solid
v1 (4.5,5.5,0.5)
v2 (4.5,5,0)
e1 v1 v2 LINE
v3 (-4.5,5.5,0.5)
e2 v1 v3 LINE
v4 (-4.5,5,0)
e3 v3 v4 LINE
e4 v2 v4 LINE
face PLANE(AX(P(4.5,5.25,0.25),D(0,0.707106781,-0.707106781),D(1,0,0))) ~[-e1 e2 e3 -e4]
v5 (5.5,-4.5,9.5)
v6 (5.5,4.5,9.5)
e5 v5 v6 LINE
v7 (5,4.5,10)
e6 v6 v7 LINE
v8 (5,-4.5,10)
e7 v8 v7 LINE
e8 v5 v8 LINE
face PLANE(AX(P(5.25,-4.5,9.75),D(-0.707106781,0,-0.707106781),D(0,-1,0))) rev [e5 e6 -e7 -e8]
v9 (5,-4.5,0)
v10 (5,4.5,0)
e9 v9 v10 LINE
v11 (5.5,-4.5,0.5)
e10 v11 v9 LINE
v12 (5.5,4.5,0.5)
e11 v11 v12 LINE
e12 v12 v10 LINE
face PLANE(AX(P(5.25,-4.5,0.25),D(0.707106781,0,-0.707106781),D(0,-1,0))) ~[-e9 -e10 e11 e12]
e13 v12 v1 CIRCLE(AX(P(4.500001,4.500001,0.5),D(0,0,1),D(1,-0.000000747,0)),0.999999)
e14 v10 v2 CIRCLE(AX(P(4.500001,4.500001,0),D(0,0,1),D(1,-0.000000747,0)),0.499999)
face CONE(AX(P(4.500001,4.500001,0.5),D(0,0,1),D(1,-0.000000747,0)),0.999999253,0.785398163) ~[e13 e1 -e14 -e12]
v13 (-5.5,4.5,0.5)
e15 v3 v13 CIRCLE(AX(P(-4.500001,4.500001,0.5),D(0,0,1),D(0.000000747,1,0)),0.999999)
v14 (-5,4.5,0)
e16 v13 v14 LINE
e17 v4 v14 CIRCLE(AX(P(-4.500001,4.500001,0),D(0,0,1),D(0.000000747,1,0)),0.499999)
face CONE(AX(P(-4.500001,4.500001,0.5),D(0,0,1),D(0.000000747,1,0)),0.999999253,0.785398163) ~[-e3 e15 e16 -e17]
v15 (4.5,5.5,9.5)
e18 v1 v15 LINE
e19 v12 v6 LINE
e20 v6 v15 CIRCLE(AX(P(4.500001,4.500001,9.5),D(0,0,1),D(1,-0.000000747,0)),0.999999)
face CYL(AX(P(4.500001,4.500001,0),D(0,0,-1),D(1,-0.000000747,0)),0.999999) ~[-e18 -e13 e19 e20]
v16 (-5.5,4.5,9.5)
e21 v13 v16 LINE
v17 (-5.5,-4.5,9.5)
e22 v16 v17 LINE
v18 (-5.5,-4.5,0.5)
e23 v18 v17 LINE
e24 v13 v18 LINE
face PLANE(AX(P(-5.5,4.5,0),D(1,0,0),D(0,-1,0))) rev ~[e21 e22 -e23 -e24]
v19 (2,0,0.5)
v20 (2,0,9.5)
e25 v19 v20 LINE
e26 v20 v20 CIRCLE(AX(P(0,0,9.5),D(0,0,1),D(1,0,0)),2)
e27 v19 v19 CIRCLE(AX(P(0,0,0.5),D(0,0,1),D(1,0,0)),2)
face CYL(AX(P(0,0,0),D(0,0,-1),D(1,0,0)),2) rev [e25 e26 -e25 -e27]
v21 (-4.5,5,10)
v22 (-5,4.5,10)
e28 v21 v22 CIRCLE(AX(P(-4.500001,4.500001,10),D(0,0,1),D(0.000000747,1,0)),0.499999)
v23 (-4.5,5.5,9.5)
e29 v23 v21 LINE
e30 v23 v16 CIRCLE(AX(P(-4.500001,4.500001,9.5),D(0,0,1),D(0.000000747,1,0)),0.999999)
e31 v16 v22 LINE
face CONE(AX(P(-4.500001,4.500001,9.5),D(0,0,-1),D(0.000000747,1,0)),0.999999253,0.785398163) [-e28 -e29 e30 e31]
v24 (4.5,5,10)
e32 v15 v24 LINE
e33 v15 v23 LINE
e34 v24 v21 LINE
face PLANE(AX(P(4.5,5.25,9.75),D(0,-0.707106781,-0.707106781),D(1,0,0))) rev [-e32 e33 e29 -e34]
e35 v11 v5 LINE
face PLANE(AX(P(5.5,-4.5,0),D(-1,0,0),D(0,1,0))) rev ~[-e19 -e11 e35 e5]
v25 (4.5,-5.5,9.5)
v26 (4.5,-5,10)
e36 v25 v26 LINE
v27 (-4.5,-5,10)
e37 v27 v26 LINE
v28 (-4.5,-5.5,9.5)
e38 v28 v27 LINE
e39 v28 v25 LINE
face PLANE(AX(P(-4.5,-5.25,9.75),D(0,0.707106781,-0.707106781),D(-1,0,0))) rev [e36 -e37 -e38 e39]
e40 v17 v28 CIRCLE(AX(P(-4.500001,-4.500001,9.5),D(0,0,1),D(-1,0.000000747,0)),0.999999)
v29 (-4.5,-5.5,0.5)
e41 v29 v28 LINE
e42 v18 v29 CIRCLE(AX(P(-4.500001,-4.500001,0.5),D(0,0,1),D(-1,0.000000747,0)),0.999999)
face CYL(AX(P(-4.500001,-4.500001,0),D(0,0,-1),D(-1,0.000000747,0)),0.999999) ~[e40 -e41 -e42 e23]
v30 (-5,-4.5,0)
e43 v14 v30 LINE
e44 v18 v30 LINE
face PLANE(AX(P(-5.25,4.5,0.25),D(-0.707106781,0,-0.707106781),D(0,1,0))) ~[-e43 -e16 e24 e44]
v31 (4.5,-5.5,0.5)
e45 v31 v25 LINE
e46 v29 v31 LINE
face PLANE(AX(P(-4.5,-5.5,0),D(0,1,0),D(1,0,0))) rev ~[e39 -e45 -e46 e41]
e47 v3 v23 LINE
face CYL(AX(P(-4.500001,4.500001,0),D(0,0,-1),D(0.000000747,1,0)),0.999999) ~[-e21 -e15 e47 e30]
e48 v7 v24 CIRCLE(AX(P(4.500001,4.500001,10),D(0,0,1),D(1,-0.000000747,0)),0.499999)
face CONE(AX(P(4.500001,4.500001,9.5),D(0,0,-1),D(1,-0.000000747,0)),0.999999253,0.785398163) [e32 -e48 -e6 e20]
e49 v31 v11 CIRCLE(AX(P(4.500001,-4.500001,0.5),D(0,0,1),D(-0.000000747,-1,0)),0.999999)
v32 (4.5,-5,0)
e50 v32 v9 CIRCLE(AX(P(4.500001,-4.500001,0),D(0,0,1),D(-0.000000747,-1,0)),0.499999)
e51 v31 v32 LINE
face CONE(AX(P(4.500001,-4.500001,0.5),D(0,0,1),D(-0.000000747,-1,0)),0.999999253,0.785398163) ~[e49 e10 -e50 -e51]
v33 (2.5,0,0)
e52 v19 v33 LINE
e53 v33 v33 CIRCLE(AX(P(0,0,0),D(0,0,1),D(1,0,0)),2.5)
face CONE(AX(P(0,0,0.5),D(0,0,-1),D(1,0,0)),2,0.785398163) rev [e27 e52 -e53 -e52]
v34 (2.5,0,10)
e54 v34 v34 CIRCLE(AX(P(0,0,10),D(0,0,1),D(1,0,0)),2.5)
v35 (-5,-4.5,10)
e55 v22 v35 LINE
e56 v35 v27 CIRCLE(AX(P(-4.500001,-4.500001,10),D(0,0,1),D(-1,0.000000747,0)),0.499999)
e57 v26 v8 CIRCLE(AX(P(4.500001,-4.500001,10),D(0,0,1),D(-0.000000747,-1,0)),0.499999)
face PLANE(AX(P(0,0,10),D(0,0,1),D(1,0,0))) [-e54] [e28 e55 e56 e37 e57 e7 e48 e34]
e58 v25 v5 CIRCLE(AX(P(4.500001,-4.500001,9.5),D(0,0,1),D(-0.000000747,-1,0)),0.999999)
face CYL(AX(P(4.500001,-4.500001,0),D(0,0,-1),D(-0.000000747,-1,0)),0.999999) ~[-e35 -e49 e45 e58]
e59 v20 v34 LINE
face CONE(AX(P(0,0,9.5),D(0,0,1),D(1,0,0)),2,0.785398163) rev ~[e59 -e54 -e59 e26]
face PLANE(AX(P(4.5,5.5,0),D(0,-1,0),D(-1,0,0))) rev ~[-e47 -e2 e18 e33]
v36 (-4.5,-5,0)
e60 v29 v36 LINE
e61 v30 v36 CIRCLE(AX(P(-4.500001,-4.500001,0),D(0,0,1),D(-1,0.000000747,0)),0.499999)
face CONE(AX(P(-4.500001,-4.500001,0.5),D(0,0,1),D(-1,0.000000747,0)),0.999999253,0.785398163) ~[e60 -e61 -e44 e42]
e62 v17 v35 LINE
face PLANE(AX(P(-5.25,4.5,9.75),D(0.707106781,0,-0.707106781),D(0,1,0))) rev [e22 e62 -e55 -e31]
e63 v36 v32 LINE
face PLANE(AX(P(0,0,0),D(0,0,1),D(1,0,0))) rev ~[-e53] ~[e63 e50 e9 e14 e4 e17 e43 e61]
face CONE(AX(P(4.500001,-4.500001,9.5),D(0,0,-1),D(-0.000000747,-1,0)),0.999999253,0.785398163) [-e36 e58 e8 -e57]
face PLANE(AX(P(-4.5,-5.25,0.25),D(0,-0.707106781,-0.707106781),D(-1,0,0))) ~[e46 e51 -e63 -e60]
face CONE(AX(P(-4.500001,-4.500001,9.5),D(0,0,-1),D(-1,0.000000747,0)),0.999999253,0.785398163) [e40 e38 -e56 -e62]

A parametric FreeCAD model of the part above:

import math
import FreeCAD as App
import Part
import Sketcher
from FreeCAD import Vector
Q = App.Units.Quantity


def edges_at(feature, points):
    """Names of the edges that pass closest to the given points."""
    edges = feature.Shape.Edges
    near = lambda p: min(range(len(edges)), key=lambda i: edges[i].distToShape(Part.Vertex(*p))[0])
    return sorted({f"Edge{near(p) + 1}" for p in points})

doc = App.newDocument("Part")
body = doc.addObject("PartDesign::Body", "Body")

sketch1 = body.newObject("Sketcher::SketchObject", "Sketch")
sketch1.AttachmentSupport = (doc.getObject("XY_Plane"), [""])
sketch1.MapMode = "FlatFace"
sketch1.addGeometry([
    Part.ArcOfCircle(Part.Circle(Vector(4.5, 4.5, 0), Vector(0, 0, 1), 1), math.radians(0), math.radians(90)),
    Part.LineSegment(Vector(4.5, 5.5, 0), Vector(-4.5, 5.5, 0)),
    Part.ArcOfCircle(Part.Circle(Vector(-4.5, 4.5, 0), Vector(0, 0, 1), 1), math.radians(90), math.radians(180)),
    Part.LineSegment(Vector(-5.5, 4.5, 0), Vector(-5.5, -4.5, 0)),
    Part.ArcOfCircle(Part.Circle(Vector(-4.5, -4.5, 0), Vector(0, 0, 1), 1), math.radians(180), math.radians(270)),
    Part.LineSegment(Vector(-4.5, -5.5, 0), Vector(4.5, -5.5, 0)),
    Part.ArcOfCircle(Part.Circle(Vector(4.5, -4.5, 0), Vector(0, 0, 1), 1), math.radians(-90), math.radians(0)),
    Part.LineSegment(Vector(5.5, -4.5, 0), Vector(5.5, 4.5, 0)),
    Part.Circle(Vector(0, 0, 0), Vector(0, 0, 1), 2),
], False)
sketch1.addConstraint([
    Sketcher.Constraint("Tangent", 0, 2, 1, 1),
    Sketcher.Constraint("Tangent", 1, 2, 2, 1),
    Sketcher.Constraint("Tangent", 2, 2, 3, 1),
    Sketcher.Constraint("Tangent", 3, 2, 4, 1),
    Sketcher.Constraint("Tangent", 4, 2, 5, 1),
    Sketcher.Constraint("Tangent", 5, 2, 6, 1),
    Sketcher.Constraint("Tangent", 6, 2, 7, 1),
    Sketcher.Constraint("Tangent", 7, 2, 0, 1),
    Sketcher.Constraint("Horizontal", 1),
    Sketcher.Constraint("Vertical", 3),
    Sketcher.Constraint("Horizontal", 5),
    Sketcher.Constraint("Vertical", 7),
    Sketcher.Constraint("Coincident", 8, 3, -1, 1),
    Sketcher.Constraint("Equal", 0, 2),
    Sketcher.Constraint("Equal", 2, 4),
    Sketcher.Constraint("Equal", 4, 6),
    Sketcher.Constraint("Symmetric", 0, 3, 4, 3, -1, 1),
    Sketcher.Constraint("Equal", 5, 3),
    Sketcher.Constraint("Diameter", 8, Q("4 mm")),
    Sketcher.Constraint("Radius", 0, Q("0.999999 mm")),
    Sketcher.Constraint("DistanceX", 1, 2, 1, 1, Q("9 mm")),
])
pad1 = body.newObject("PartDesign::Pad", "Pad")
pad1.Profile = sketch1
pad1.Length = 10
doc.recompute()

chamfer = body.newObject("PartDesign::Chamfer", "Chamfer")
chamfer.Base = (pad1, edges_at(pad1, [
    (5.207, 5.207, 0),
    (0, 5.5, 0),
    (-5.207, 5.207, 0),
    (-5.5, 0, 0),
    (-5.207, -5.207, 0),
    (0, -5.5, 0),
    (5.207, -5.207, 0),
    (5.5, 0, 0),
    (-2, 0, 0),
    (5.207, 5.207, 10),
    (0, 5.5, 10),
    (-5.207, 5.207, 10),
    (-5.5, 0, 10),
    (-5.207, -5.207, 10),
    (0, -5.5, 10),
    (5.207, -5.207, 10),
    (5.5, 0, 10),
    (-2, 0, 10),
]))
chamfer.Size = 0.5

doc.recompute()
